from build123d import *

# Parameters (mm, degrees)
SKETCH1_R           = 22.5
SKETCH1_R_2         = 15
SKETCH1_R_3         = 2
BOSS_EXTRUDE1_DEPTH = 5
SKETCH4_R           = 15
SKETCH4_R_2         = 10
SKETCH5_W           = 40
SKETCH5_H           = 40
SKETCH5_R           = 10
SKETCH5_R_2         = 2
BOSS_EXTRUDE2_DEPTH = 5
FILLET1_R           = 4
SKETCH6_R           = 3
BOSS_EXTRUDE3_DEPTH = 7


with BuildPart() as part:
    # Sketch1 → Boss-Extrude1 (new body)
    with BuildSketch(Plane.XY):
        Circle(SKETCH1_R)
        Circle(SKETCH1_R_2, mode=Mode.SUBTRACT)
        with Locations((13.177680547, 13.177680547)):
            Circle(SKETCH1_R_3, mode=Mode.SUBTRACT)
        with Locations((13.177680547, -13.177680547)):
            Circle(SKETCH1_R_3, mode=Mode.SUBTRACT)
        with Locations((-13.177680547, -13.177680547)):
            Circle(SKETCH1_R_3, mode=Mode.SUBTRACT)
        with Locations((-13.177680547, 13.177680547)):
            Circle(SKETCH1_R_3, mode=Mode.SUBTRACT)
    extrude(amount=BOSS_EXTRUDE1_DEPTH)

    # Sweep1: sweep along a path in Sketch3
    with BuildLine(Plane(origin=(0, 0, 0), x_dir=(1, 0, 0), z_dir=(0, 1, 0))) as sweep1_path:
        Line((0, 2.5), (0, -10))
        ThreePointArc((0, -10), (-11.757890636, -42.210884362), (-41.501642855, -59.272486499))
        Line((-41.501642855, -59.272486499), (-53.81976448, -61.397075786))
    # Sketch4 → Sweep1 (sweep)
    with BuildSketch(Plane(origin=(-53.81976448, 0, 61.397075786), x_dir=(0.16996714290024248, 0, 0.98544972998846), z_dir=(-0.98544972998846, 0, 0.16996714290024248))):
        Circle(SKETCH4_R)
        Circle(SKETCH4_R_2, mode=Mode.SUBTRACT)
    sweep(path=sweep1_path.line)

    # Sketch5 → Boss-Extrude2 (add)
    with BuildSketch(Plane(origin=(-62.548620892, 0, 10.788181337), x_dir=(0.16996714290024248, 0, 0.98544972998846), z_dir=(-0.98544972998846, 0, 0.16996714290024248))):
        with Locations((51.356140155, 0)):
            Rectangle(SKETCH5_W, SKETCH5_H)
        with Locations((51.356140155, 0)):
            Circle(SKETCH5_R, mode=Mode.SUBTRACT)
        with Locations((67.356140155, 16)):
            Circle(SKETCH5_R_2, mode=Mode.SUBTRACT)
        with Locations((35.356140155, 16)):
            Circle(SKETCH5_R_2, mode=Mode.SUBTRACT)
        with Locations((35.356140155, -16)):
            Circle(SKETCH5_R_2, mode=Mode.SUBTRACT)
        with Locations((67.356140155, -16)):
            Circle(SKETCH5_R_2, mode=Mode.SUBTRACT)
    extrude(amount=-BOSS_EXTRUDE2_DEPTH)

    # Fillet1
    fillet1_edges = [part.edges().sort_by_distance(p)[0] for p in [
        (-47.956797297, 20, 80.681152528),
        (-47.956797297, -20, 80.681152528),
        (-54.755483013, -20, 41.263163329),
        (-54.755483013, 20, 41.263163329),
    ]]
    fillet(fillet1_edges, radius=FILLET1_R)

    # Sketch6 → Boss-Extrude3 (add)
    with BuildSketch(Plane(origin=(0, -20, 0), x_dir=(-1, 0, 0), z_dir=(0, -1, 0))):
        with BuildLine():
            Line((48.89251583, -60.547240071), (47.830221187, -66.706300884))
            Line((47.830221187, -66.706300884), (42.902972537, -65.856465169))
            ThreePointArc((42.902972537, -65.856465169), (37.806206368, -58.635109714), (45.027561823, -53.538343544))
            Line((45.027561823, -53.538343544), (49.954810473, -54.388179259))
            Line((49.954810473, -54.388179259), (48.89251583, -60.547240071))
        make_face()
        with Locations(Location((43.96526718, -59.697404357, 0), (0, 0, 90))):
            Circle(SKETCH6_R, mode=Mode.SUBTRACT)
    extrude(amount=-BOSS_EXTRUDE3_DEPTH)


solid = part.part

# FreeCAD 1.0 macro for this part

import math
import FreeCAD as App
import Part
import Sketcher


def edges_at(feature, points):
    """Names of the edges that pass closest to the given points."""
    edges = feature.Shape.Edges
    near = lambda p: min(range(len(edges)), key=lambda i: edges[i].distToShape(Part.Vertex(*p))[0])
    return sorted({f"Edge{near(p) + 1}" for p in points})


def add_polygon(sketch, points):
    """Adds a closed chain of lines whose ends are joined by coincident constraints."""
    first, n = sketch.GeometryCount, len(points)
    for a, b in zip(points, points[1:] + points[:1]):
        sketch.addGeometry(Part.LineSegment(App.Vector(*a, 0), App.Vector(*b, 0)), False)
    for i in range(n):
        sketch.addConstraint(Sketcher.Constraint("Coincident", first + i, 2, first + (i + 1) % n, 1))

doc = App.newDocument("Part")
params = doc.addObject("Spreadsheet::Sheet", "Params")
for row, (alias, value) in enumerate([
    ("sketch1_diameter", "45 mm"),
    ("sketch1_diameter2", "4 mm"),
    ("sketch1_diameter3", "30 mm"),
    ("pad1_length", "5 mm"),
    ("sketch2_diameter", "30 mm"),
    ("sketch2_diameter2", "20 mm"),
    ("sketch3_radius", "50 mm"),
    ("sketch3_height", "12.5 mm"),
    ("sketch3_length", "12.5 mm"),
    ("sketch4_diameter", "4 mm"),
    ("sketch4_diameter2", "20 mm"),
    ("sketch4_width", "40 mm"),
    ("pad2_length", "5 mm"),
    ("fillet_radius", "4 mm"),
    ("sketch5_diameter", "6 mm"),
    ("sketch5_radius", "6.25 mm"),
    ("sketch5_length", "5 mm"),
    ("pad3_length", "7 mm"),
], start=1):
    params.set(f"A{row}", alias)
    params.set(f"B{row}", "=" + value)
    params.setAlias(f"B{row}", alias)

body = doc.addObject("PartDesign::Body", "Body")

sketch1 = body.newObject("Sketcher::SketchObject", "Sketch")
sketch1.AttachmentSupport = (doc.getObject("XY_Plane"), [""])
sketch1.MapMode = "FlatFace"
sketch1.addGeometry([
    Part.Circle(App.Vector(0, 0, 0), App.Vector(0, 0, 1), 22.5),
    Part.Circle(App.Vector(-13.2, -13.2, 0), App.Vector(0, 0, 1), 2),
    Part.Circle(App.Vector(13.2, -13.2, 0), App.Vector(0, 0, 1), 2),
    Part.Circle(App.Vector(-13.2, 13.2, 0), App.Vector(0, 0, 1), 2),
    Part.Circle(App.Vector(0, 0, 0), App.Vector(0, 0, 1), 15),
    Part.Circle(App.Vector(13.2, 13.2, 0), App.Vector(0, 0, 1), 2),
], False)
sketch1.addConstraint([
    Sketcher.Constraint("Coincident", 0, 3, -1, 1),
    Sketcher.Constraint("Coincident", 4, 3, -1, 1),
    Sketcher.Constraint("Equal", 1, 2),
    Sketcher.Constraint("Equal", 2, 3),
    Sketcher.Constraint("Equal", 3, 5),
    Sketcher.Constraint("Symmetric", 2, 3, 3, 3, -1, 1),
    Sketcher.Constraint("Symmetric", 1, 3, 5, 3, -1, 1),
    Sketcher.Constraint("Symmetric", 1, 3, 2, 3, -2),
    Sketcher.Constraint("Diameter", 0, 45.0),
    Sketcher.Constraint("Diameter", 1, 4.0),
    Sketcher.Constraint("Diameter", 4, 30.0),
    Sketcher.Constraint("DistanceX", 1, 3, -1, 1, 13.177681),
    Sketcher.Constraint("DistanceY", 1, 3, -1, 1, 13.177681),
])
sketch1.setExpression("Constraints[8]", "Params.sketch1_diameter")
sketch1.setExpression("Constraints[9]", "Params.sketch1_diameter2")
sketch1.setExpression("Constraints[10]", "Params.sketch1_diameter3")
pad1 = body.newObject("PartDesign::Pad", "Pad")
pad1.Profile = sketch1
pad1.setExpression("Length", "Params.pad1_length")

sketch2 = body.newObject("Sketcher::SketchObject", "Sketch001")
sketch2.Placement = App.Placement(App.Vector(-53.819764, 0, 61.397076), App.Rotation(App.Vector(0.169967143, 0, 0.98544973), App.Vector(0, 1, 0), App.Vector(-0.98544973, 0, 0.169967143), "ZXY"))
sketch2.addGeometry([
    Part.Circle(App.Vector(0, 0, 0), App.Vector(0, 0, 1), 15),
    Part.Circle(App.Vector(0, 0, 0), App.Vector(0, 0, 1), 10),
], False)
sketch2.addConstraint([
    Sketcher.Constraint("Coincident", 0, 3, -1, 1),
    Sketcher.Constraint("Coincident", 1, 3, -1, 1),
    Sketcher.Constraint("Diameter", 0, 30.0),
    Sketcher.Constraint("Diameter", 1, 20.0),
])
sketch2.setExpression("Constraints[2]", "Params.sketch2_diameter")
sketch2.setExpression("Constraints[3]", "Params.sketch2_diameter2")

sketch3 = body.newObject("Sketcher::SketchObject", "Sketch002")
sketch3.AttachmentSupport = (doc.getObject("XZ_Plane"), [""])
sketch3.MapMode = "FlatFace"
sketch3.addGeometry([
    Part.LineSegment(App.Vector(0, -2, 0), App.Vector(0, 10, 0)),
    Part.ArcOfCircle(Part.Circle(App.Vector(-50, 10, 0), App.Vector(0, 0, 1), 50), math.radians(0), math.radians(80)),
    Part.LineSegment(App.Vector(-42, 59, 0), App.Vector(-54, 61, 0)),
], False)
sketch3.addConstraint([
    Sketcher.Constraint("Tangent", 0, 2, 1, 1),
    Sketcher.Constraint("Tangent", 1, 2, 2, 1),
    Sketcher.Constraint("Vertical", 0),
    Sketcher.Constraint("PointOnObject", 0, 1, -2),
    Sketcher.Constraint("Radius", 1, 50.0),
    Sketcher.Constraint("DistanceY", 0, 1, 0, 2, 12.5),
    Sketcher.Constraint("DistanceY", -1, 1, 1, 3, 10.0),
    Sketcher.Constraint("Distance", 2, 12.5),
    Sketcher.Constraint("DistanceY", 1, 2, 2, 2, 2.124589),
])
sketch3.setExpression("Constraints[4]", "Params.sketch3_radius")
sketch3.setExpression("Constraints[5]", "Params.sketch3_height")
sketch3.setExpression("Constraints[7]", "Params.sketch3_length")
doc.recompute()

additivepipe = body.newObject("PartDesign::AdditivePipe", "AdditivePipe")
additivepipe.Profile = sketch2
additivepipe.Spine = (sketch3, ["Edge1", "Edge2", "Edge3"])

sketch4 = body.newObject("Sketcher::SketchObject", "Sketch003")
sketch4.Placement = App.Placement(App.Vector(-62.548621, 0, 10.788181), App.Rotation(App.Vector(0.169967143, 0, 0.98544973), App.Vector(0, 1, 0), App.Vector(-0.98544973, 0, 0.169967143), "ZXY"))
add_polygon(sketch4, [(31.4, 20), (31.4, -20), (71.4, -20), (71.4, 20)])
sketch4.addGeometry(Part.Circle(App.Vector(35.4, -16, 0), App.Vector(0, 0, 1), 2), False)
sketch4.addGeometry(Part.Circle(App.Vector(67.4, -16, 0), App.Vector(0, 0, 1), 2), False)
sketch4.addGeometry(Part.Circle(App.Vector(51.4, 0, 0), App.Vector(0, 0, 1), 10), False)
sketch4.addGeometry(Part.Circle(App.Vector(35.4, 16, 0), App.Vector(0, 0, 1), 2), False)
sketch4.addGeometry(Part.Circle(App.Vector(67.4, 16, 0), App.Vector(0, 0, 1), 2), False)
sketch4.addConstraint([
    Sketcher.Constraint("Vertical", 0),
    Sketcher.Constraint("Horizontal", 1),
    Sketcher.Constraint("Vertical", 2),
    Sketcher.Constraint("Horizontal", 3),
    Sketcher.Constraint("Equal", 4, 5),
    Sketcher.Constraint("Equal", 5, 7),
    Sketcher.Constraint("Equal", 7, 8),
    Sketcher.Constraint("Symmetric", 4, 3, 7, 3, -1),
    Sketcher.Constraint("Symmetric", 5, 3, 8, 3, -1),
    Sketcher.Constraint("PointOnObject", 6, 3, -1),
    Sketcher.Constraint("Horizontal", 4, 3, 5, 3),
    Sketcher.Constraint("Equal", 3, 0),
    Sketcher.Constraint("Diameter", 4, 4.0),
    Sketcher.Constraint("Diameter", 6, 20.0),
    Sketcher.Constraint("DistanceX", 1, 1, 1, 2, 40.0),
    Sketcher.Constraint("DistanceY", 4, 3, -1, 1, 16.0),
    Sketcher.Constraint("DistanceY", 0, 2, -1, 1, 20.0),
    Sketcher.Constraint("DistanceX", 4, 3, 5, 3, 32.0),
    Sketcher.Constraint("DistanceX", 4, 3, 6, 3, 16.0),
    Sketcher.Constraint("DistanceX", 0, 2, 4, 3, 4.0),
    Sketcher.Constraint("DistanceX", -1, 1, 4, 3, 35.35614),
])
sketch4.setExpression("Constraints[16]", "Params.sketch4_diameter")
sketch4.setExpression("Constraints[17]", "Params.sketch4_diameter2")
sketch4.setExpression("Constraints[18]", "Params.sketch4_width")
pad2 = body.newObject("PartDesign::Pad", "Pad001")
pad2.Profile = sketch4
pad2.setExpression("Length", "Params.pad2_length")
pad2.Reversed = True
doc.recompute()

fillet = body.newObject("PartDesign::Fillet", "Fillet")
fillet.Base = (pad2, edges_at(pad2, [
    (-47.957, 20, 80.681),
    (-47.957, -20, 80.681),
    (-54.755, -20, 41.263),
    (-54.755, 20, 41.263),
]))
fillet.setExpression("Radius", "Params.fillet_radius")

sketch5 = body.newObject("Sketcher::SketchObject", "Sketch004")
sketch5.AttachmentSupport = (doc.getObject("XZ_Plane"), [""])
sketch5.MapMode = "FlatFace"
sketch5.AttachmentOffset = App.Placement(App.Vector(0, 0, 20), App.Rotation())
sketch5.addGeometry([
    Part.LineSegment(App.Vector(-47.8, 66.7, 0), App.Vector(-48.9, 60.5, 0)),
    Part.LineSegment(App.Vector(-48.9, 60.5, 0), App.Vector(-50, 54.4, 0)),
    Part.LineSegment(App.Vector(-50, 54.4, 0), App.Vector(-45, 53.5, 0)),
    Part.ArcOfCircle(Part.Circle(App.Vector(-44, 59.7, 0), App.Vector(0, 0, 1), 6.2), math.radians(-100), math.radians(80)),
    Part.LineSegment(App.Vector(-42.9, 65.9, 0), App.Vector(-47.8, 66.7, 0)),
    Part.Circle(App.Vector(-44, 59.7, 0), App.Vector(0, 0, 1), 3),
], False)
sketch5.addConstraint([
    Sketcher.Constraint("Coincident", 0, 2, 1, 1),
    Sketcher.Constraint("Coincident", 1, 2, 2, 1),
    Sketcher.Constraint("Tangent", 2, 2, 3, 1),
    Sketcher.Constraint("Tangent", 3, 2, 4, 1),
    Sketcher.Constraint("Coincident", 4, 2, 0, 1),
    Sketcher.Constraint("Coincident", 5, 3, 3, 3),
    Sketcher.Constraint("Parallel", 0, 1),
    Sketcher.Constraint("Perpendicular", 1, 2),
    Sketcher.Constraint("Parallel", 2, 4),
    Sketcher.Constraint("Equal", 0, 1),
    Sketcher.Constraint("Diameter", 5, 6.0),
    Sketcher.Constraint("Radius", 3, 6.25),
    Sketcher.Constraint("Distance", 2, 5.0),
    Sketcher.Constraint("DistanceY", -1, 1, 4, 2, 66.706301),
    Sketcher.Constraint("DistanceY", -1, 1, 0, 2, 60.54724),
    Sketcher.Constraint("DistanceX", 1, 2, -1, 1, 49.95481),
])
sketch5.setExpression("Constraints[10]", "Params.sketch5_diameter")
sketch5.setExpression("Constraints[11]", "Params.sketch5_radius")
sketch5.setExpression("Constraints[12]", "Params.sketch5_length")
pad3 = body.newObject("PartDesign::Pad", "Pad002")
pad3.Profile = sketch5
pad3.setExpression("Length", "Params.pad3_length")
pad3.Reversed = True

doc.recompute()
